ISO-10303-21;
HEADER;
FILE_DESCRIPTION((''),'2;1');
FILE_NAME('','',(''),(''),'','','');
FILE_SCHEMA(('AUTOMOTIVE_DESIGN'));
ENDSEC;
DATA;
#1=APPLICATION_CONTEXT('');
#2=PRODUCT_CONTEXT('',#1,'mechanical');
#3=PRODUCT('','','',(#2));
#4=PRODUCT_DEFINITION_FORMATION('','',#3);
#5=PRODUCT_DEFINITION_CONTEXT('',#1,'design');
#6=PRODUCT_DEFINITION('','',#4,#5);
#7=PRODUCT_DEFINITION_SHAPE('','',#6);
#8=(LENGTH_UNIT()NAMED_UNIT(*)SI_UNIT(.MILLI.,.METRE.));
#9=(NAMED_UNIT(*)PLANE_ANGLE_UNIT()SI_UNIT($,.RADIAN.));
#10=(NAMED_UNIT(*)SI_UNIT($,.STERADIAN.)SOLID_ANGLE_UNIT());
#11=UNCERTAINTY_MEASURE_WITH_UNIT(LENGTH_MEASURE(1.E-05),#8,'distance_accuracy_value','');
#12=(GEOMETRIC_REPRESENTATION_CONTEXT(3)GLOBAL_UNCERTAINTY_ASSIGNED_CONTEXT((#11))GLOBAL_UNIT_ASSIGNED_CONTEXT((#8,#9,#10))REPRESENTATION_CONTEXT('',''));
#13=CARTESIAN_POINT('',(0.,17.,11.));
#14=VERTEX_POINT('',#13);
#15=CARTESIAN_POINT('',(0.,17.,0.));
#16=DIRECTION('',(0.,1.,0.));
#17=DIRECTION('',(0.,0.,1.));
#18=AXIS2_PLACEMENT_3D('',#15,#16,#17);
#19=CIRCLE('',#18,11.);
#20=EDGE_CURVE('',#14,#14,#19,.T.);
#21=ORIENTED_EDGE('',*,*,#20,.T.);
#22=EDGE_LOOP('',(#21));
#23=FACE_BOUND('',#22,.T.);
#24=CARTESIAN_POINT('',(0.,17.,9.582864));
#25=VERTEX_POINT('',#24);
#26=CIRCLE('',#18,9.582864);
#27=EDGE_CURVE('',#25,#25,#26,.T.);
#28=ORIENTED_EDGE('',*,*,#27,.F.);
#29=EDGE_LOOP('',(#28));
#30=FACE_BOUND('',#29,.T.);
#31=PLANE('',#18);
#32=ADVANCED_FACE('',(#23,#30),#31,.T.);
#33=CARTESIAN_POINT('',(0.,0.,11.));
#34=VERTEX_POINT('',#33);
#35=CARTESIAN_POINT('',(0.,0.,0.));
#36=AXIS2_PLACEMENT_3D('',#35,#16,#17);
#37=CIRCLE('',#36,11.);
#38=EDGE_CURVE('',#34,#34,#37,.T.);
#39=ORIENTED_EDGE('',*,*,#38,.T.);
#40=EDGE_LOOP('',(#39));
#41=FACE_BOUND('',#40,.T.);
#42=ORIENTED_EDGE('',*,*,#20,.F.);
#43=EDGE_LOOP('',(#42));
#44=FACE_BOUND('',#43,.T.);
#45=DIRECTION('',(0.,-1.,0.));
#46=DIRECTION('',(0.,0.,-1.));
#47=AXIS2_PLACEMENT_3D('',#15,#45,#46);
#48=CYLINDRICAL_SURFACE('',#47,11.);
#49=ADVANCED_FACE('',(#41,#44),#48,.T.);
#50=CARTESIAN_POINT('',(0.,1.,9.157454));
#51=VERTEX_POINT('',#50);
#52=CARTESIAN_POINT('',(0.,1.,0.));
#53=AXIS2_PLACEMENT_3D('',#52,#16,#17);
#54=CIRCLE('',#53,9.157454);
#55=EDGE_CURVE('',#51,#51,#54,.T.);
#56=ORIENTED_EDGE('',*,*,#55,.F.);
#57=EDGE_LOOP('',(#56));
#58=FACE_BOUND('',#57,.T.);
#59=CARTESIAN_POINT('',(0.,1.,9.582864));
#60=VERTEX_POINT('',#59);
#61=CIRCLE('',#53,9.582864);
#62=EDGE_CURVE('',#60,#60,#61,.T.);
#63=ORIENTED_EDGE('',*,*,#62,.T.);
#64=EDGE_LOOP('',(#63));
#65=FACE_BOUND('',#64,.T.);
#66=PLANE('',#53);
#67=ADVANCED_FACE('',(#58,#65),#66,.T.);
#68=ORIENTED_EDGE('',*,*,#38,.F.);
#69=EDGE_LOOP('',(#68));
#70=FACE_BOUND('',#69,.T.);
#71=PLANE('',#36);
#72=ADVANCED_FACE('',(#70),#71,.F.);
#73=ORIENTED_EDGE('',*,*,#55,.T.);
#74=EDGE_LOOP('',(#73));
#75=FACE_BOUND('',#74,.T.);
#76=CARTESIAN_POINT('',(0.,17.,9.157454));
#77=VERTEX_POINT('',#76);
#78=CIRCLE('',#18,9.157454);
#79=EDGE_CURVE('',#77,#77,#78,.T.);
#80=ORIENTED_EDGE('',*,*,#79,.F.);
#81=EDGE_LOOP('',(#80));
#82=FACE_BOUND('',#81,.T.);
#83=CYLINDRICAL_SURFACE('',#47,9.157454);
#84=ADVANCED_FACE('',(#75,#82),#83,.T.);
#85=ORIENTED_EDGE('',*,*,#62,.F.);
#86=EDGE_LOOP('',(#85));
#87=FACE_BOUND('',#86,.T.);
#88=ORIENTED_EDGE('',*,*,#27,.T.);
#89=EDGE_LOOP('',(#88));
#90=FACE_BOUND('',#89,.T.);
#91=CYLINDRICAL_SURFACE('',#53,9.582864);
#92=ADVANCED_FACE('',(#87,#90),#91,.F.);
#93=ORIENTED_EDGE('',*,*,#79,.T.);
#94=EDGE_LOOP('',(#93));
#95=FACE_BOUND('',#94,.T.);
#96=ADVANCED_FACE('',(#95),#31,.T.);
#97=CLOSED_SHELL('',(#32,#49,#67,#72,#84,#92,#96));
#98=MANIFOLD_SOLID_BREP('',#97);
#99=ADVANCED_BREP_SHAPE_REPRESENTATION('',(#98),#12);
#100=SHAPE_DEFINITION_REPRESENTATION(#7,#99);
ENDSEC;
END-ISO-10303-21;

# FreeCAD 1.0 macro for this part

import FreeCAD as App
import Part
import Sketcher
Q = App.Units.Quantity

doc = App.newDocument("Part")
params = doc.addObject("Spreadsheet::Sheet", "Params")
for row, (alias, value) in enumerate([
    ("sketch1_diameter", "22 mm"),
    ("pad1_length", "17 mm"),
    ("pocket1_length", "16 mm"),
    ("pad2_length", "16 mm"),
], start=1):
    params.set(f"A{row}", alias)
    params.set(f"B{row}", "=" + value)
    params.setAlias(f"B{row}", alias)

body = doc.addObject("PartDesign::Body", "Body")

# Sketch on XZ plane
sketch1 = body.newObject("Sketcher::SketchObject", "Sketch")
sketch1.AttachmentSupport = (doc.getObject("XZ_Plane"), [""])
sketch1.MapMode = "FlatFace"
sketch1.addGeometry(Part.Circle(App.Vector(0, 0, 0), App.Vector(0, 0, 1), 11), False)
sketch1.addConstraint([
    Sketcher.Constraint("Coincident", 0, 3, -1, 1),
    Sketcher.Constraint("Diameter", 0, Q("22 mm")),
])
sketch1.setExpression("Constraints[1]", "Params.sketch1_diameter")
pad1 = body.newObject("PartDesign::Pad", "Pad")
pad1.Profile = sketch1
pad1.setExpression("Length", "Params.pad1_length")
pad1.Reversed = True

# Sketch on XZ plane
sketch2 = body.newObject("Sketcher::SketchObject", "Sketch001")
sketch2.AttachmentSupport = (doc.getObject("XZ_Plane"), [""])
sketch2.MapMode = "FlatFace"
sketch2.AttachmentOffset = App.Placement(App.Vector(0, 0, -17), App.Rotation())
sketch2.addGeometry(Part.Circle(App.Vector(0, 0, 0), App.Vector(0, 0, 1), 10), False)
sketch2.addConstraint([
    Sketcher.Constraint("Coincident", 0, 3, -1, 1),
    Sketcher.Constraint("Diameter", 0, Q("19.165728 mm")),
])
pocket1 = body.newObject("PartDesign::Pocket", "Pocket")
pocket1.Profile = sketch2
pocket1.setExpression("Length", "Params.pocket1_length")
pocket1.Reversed = True

# Sketch on XZ plane
sketch3 = body.newObject("Sketcher::SketchObject", "Sketch002")
sketch3.AttachmentSupport = (doc.getObject("XZ_Plane"), [""])
sketch3.MapMode = "FlatFace"
sketch3.AttachmentOffset = App.Placement(App.Vector(0, 0, -1), App.Rotation())
sketch3.addGeometry(Part.Circle(App.Vector(0, 0, 0), App.Vector(0, 0, 1), 9), False)
sketch3.addConstraint([
    Sketcher.Constraint("Coincident", 0, 3, -1, 1),
    Sketcher.Constraint("Diameter", 0, Q("18.314909 mm")),
])
pad2 = body.newObject("PartDesign::Pad", "Pad001")
pad2.Profile = sketch3
pad2.setExpression("Length", "Params.pad2_length")
pad2.Reversed = True

doc.recompute()
